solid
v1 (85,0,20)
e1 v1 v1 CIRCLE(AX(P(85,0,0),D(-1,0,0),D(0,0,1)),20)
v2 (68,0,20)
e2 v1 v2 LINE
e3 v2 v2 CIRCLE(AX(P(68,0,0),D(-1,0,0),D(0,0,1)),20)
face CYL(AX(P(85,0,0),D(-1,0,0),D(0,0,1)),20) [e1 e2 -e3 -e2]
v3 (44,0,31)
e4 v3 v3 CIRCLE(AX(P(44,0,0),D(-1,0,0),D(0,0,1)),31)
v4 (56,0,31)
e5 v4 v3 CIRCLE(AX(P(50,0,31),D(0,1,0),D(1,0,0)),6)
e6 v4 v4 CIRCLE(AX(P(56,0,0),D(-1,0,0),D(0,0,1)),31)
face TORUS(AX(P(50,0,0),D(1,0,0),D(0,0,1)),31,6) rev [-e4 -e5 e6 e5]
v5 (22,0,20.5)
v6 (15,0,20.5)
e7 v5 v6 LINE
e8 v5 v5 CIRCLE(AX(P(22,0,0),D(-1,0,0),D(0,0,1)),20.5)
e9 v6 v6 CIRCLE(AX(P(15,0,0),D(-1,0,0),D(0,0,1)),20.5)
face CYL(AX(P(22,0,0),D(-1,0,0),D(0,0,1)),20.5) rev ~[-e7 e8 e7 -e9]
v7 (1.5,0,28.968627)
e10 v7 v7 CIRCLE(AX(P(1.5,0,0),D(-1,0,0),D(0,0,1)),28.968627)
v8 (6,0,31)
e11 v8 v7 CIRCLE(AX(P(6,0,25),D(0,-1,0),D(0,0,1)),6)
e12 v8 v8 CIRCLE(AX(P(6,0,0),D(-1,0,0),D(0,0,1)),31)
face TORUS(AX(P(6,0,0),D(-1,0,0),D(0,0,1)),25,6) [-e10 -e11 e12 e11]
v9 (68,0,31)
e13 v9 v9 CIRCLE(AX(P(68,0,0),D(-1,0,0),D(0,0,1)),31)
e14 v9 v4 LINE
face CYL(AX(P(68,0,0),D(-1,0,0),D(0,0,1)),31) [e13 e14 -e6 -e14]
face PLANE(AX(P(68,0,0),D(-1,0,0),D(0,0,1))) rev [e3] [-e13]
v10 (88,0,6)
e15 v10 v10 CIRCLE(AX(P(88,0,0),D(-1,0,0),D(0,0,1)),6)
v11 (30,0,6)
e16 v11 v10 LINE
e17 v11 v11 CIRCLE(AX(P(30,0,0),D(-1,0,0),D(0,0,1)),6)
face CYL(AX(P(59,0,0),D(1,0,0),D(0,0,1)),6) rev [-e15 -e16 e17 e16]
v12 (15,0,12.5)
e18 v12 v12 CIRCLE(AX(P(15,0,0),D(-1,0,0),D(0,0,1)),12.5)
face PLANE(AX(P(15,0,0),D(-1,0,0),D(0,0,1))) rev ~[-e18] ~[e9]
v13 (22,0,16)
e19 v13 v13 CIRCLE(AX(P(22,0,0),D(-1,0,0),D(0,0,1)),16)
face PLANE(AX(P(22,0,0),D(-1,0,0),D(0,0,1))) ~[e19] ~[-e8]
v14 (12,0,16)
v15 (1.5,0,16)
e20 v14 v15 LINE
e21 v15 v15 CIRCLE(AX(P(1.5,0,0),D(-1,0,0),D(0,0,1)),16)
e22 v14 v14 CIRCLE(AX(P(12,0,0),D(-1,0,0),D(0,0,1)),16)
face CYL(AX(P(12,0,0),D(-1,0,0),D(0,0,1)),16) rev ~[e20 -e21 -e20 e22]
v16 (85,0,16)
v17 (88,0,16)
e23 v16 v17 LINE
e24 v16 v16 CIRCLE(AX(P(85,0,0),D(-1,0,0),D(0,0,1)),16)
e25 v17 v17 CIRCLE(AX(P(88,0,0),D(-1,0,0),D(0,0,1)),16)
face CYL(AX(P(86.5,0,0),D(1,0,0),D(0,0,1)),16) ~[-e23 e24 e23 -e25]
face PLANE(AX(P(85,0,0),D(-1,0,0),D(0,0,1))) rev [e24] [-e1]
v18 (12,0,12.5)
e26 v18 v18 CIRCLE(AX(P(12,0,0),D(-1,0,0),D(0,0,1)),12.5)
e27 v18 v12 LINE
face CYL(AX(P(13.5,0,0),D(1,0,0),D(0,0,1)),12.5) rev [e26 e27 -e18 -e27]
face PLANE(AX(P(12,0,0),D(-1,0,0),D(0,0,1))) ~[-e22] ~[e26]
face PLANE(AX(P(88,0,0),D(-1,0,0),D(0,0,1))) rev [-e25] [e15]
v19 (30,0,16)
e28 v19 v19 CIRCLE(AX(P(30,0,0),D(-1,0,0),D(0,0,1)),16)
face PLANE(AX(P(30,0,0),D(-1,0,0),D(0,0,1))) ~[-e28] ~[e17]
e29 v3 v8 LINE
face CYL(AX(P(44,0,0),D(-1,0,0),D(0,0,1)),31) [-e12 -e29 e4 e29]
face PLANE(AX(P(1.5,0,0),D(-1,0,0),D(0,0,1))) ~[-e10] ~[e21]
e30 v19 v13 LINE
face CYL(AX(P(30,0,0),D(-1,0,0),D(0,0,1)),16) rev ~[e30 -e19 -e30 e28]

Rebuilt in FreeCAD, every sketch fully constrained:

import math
import FreeCAD as App
import Part
import Sketcher

doc = App.newDocument("Part")
body = doc.addObject("PartDesign::Body", "Body")

# Sketch on XZ plane
sketch1 = body.newObject("Sketcher::SketchObject", "Sketch")
sketch1.AttachmentSupport = (doc.getObject("XZ_Plane"), [""])
sketch1.MapMode = "FlatFace"
sketch1.addGeometry([
    Part.LineSegment(App.Vector(68, 20, 0), App.Vector(68, 31, 0)),  # 0
    Part.LineSegment(App.Vector(68, 31, 0), App.Vector(56, 31, 0)),  # 1
    Part.ArcOfCircle(Part.Circle(App.Vector(50, 31, 0), App.Vector(0, 0, 1), 6), math.radians(180), math.radians(360)),  # 2
    Part.LineSegment(App.Vector(44, 31, 0), App.Vector(6, 31, 0)),  # 3
    Part.ArcOfCircle(Part.Circle(App.Vector(6, 25, 0), App.Vector(0, 0, 1), 6), math.radians(90), math.radians(180)),  # 4
    Part.LineSegment(App.Vector(0, 25, 0), App.Vector(0, 0, 0)),  # 5
    Part.LineSegment(App.Vector(0, 0, 0), App.Vector(88, 0, 0)),  # 6
    Part.LineSegment(App.Vector(88, 0, 0), App.Vector(88, 16, 0)),  # 7
    Part.LineSegment(App.Vector(88, 16, 0), App.Vector(85, 16, 0)),  # 8
    Part.LineSegment(App.Vector(85, 16, 0), App.Vector(85, 20, 0)),  # 9
    Part.LineSegment(App.Vector(85, 20, 0), App.Vector(68, 20, 0)),  # 10
], False)
sketch1.addConstraint([
    Sketcher.Constraint("Coincident", 0, 2, 1, 1),
    Sketcher.Constraint("Coincident", 1, 2, 2, 2),
    Sketcher.Constraint("Coincident", 2, 1, 3, 1),
    Sketcher.Constraint("Tangent", 3, 2, 4, 1),
    Sketcher.Constraint("Tangent", 4, 2, 5, 1),
    Sketcher.Constraint("Coincident", 5, 2, 6, 1),
    Sketcher.Constraint("Coincident", 6, 2, 7, 1),
    Sketcher.Constraint("Coincident", 7, 2, 8, 1),
    Sketcher.Constraint("Coincident", 8, 2, 9, 1),
    Sketcher.Constraint("Coincident", 9, 2, 10, 1),
    Sketcher.Constraint("Coincident", 10, 2, 0, 1),
    Sketcher.Constraint("Vertical", 0),
    Sketcher.Constraint("Horizontal", 1),
    Sketcher.Constraint("Horizontal", 3),
    Sketcher.Constraint("Vertical", 5),
    Sketcher.Constraint("Horizontal", 6),
    Sketcher.Constraint("Vertical", 7),
    Sketcher.Constraint("Horizontal", 8),
    Sketcher.Constraint("Vertical", 9),
    Sketcher.Constraint("Horizontal", 10),
    Sketcher.Constraint("Coincident", 5, 2, -1, 1),
    Sketcher.Constraint("Equal", 2, 4),
    Sketcher.Constraint("Horizontal", 2, 3, 0, 2),
    Sketcher.Constraint("Horizontal", 1, 2, 2, 1),
    Sketcher.Constraint("Radius", 2, 6.0),
    Sketcher.Constraint("DistanceX", 1, 2, 1, 1, 12.0),
    Sketcher.Constraint("DistanceX", 3, 2, 3, 1, 38.0),
    Sketcher.Constraint("DistanceX", 6, 1, 6, 2, 88.0),
    Sketcher.Constraint("DistanceX", 8, 2, 8, 1, 3.0),
    Sketcher.Constraint("DistanceY", 0, 1, 0, 2, 11.0),
    Sketcher.Constraint("DistanceY", 5, 2, 5, 1, 25.0),
    Sketcher.Constraint("DistanceY", 7, 1, 7, 2, 16.0),
])
revolution = body.newObject("PartDesign::Revolution", "Revolution")
revolution.Profile = sketch1
revolution.ReferenceAxis = (sketch1, ["H_Axis"])
revolution.Angle = 360

# Sketch on XZ plane
sketch2 = body.newObject("Sketcher::SketchObject", "Sketch001")
sketch2.AttachmentSupport = (doc.getObject("XZ_Plane"), [""])
sketch2.MapMode = "FlatFace"
sketch2.addGeometry([
    Part.LineSegment(App.Vector(0, 0, 0), App.Vector(88, 0, 0)),  # 0
    Part.LineSegment(App.Vector(88, 0, 0), App.Vector(88, 6, 0)),  # 1
    Part.LineSegment(App.Vector(88, 6, 0), App.Vector(30, 6, 0)),  # 2
    Part.LineSegment(App.Vector(30, 6, 0), App.Vector(30, 16, 0)),  # 3
    Part.LineSegment(App.Vector(30, 16, 0), App.Vector(22, 16, 0)),  # 4
    Part.LineSegment(App.Vector(22, 16, 0), App.Vector(22, 20.5, 0)),  # 5
    Part.LineSegment(App.Vector(22, 20.5, 0), App.Vector(15, 20.5, 0)),  # 6
    Part.LineSegment(App.Vector(15, 20.5, 0), App.Vector(15, 12.5, 0)),  # 7
    Part.LineSegment(App.Vector(15, 12.5, 0), App.Vector(12, 12.5, 0)),  # 8
    Part.LineSegment(App.Vector(12, 12.5, 0), App.Vector(12, 16, 0)),  # 9
    Part.LineSegment(App.Vector(12, 16, 0), App.Vector(1.5, 16, 0)),  # 10
    Part.LineSegment(App.Vector(1.5, 16, 0), App.Vector(1.5, 29, 0)),  # 11
    Part.ArcOfCircle(Part.Circle(App.Vector(6, 25, 0), App.Vector(0, 0, 1), 6), math.radians(139), math.radians(180)),  # 12
    Part.LineSegment(App.Vector(0, 25, 0), App.Vector(0, 0, 0)),  # 13
], False)
sketch2.addConstraint([
    Sketcher.Constraint("Coincident", 0, 2, 1, 1),
    Sketcher.Constraint("Coincident", 1, 2, 2, 1),
    Sketcher.Constraint("Coincident", 2, 2, 3, 1),
    Sketcher.Constraint("Coincident", 3, 2, 4, 1),
    Sketcher.Constraint("Coincident", 4, 2, 5, 1),
    Sketcher.Constraint("Coincident", 5, 2, 6, 1),
    Sketcher.Constraint("Coincident", 6, 2, 7, 1),
    Sketcher.Constraint("Coincident", 7, 2, 8, 1),
    Sketcher.Constraint("Coincident", 8, 2, 9, 1),
    Sketcher.Constraint("Coincident", 9, 2, 10, 1),
    Sketcher.Constraint("Coincident", 10, 2, 11, 1),
    Sketcher.Constraint("Coincident", 11, 2, 12, 1),
    Sketcher.Constraint("Tangent", 12, 2, 13, 1),
    Sketcher.Constraint("Coincident", 13, 2, 0, 1),
    Sketcher.Constraint("Horizontal", 0),
    Sketcher.Constraint("Vertical", 1),
    Sketcher.Constraint("Horizontal", 2),
    Sketcher.Constraint("Vertical", 3),
    Sketcher.Constraint("Horizontal", 4),
    Sketcher.Constraint("Vertical", 5),
    Sketcher.Constraint("Horizontal", 6),
    Sketcher.Constraint("Vertical", 7),
    Sketcher.Constraint("Horizontal", 8),
    Sketcher.Constraint("Vertical", 9),
    Sketcher.Constraint("Horizontal", 10),
    Sketcher.Constraint("Vertical", 11),
    Sketcher.Constraint("Vertical", 13),
    Sketcher.Constraint("Coincident", 13, 2, -1, 1),
    Sketcher.Constraint("Horizontal", 4, 2, 9, 2),
    Sketcher.Constraint("Equal", 4, 7),
    Sketcher.Constraint("Radius", 12, 6.0),
    Sketcher.Constraint("DistanceX", 0, 1, 0, 2, 88.0),
    Sketcher.Constraint("DistanceX", 2, 2, 2, 1, 58.0),
    Sketcher.Constraint("DistanceX", 4, 2, 4, 1, 8.0),
    Sketcher.Constraint("DistanceX", 6, 2, 6, 1, 7.0),
    Sketcher.Constraint("DistanceX", 8, 2, 8, 1, 3.0),
    Sketcher.Constraint("DistanceY", 1, 1, 1, 2, 6.0),
    Sketcher.Constraint("DistanceY", 3, 1, 3, 2, 10.0),
    Sketcher.Constraint("DistanceY", 13, 2, 13, 1, 25.0),
    Sketcher.Constraint("DistanceX", 10, 2, 10, 1, 10.5),
    Sketcher.Constraint("DistanceY", 5, 1, 5, 2, 4.5),
])
groove = body.newObject("PartDesign::Groove", "Groove")
groove.Profile = sketch2
groove.ReferenceAxis = (sketch2, ["H_Axis"])
groove.Angle = 360

doc.recompute()
